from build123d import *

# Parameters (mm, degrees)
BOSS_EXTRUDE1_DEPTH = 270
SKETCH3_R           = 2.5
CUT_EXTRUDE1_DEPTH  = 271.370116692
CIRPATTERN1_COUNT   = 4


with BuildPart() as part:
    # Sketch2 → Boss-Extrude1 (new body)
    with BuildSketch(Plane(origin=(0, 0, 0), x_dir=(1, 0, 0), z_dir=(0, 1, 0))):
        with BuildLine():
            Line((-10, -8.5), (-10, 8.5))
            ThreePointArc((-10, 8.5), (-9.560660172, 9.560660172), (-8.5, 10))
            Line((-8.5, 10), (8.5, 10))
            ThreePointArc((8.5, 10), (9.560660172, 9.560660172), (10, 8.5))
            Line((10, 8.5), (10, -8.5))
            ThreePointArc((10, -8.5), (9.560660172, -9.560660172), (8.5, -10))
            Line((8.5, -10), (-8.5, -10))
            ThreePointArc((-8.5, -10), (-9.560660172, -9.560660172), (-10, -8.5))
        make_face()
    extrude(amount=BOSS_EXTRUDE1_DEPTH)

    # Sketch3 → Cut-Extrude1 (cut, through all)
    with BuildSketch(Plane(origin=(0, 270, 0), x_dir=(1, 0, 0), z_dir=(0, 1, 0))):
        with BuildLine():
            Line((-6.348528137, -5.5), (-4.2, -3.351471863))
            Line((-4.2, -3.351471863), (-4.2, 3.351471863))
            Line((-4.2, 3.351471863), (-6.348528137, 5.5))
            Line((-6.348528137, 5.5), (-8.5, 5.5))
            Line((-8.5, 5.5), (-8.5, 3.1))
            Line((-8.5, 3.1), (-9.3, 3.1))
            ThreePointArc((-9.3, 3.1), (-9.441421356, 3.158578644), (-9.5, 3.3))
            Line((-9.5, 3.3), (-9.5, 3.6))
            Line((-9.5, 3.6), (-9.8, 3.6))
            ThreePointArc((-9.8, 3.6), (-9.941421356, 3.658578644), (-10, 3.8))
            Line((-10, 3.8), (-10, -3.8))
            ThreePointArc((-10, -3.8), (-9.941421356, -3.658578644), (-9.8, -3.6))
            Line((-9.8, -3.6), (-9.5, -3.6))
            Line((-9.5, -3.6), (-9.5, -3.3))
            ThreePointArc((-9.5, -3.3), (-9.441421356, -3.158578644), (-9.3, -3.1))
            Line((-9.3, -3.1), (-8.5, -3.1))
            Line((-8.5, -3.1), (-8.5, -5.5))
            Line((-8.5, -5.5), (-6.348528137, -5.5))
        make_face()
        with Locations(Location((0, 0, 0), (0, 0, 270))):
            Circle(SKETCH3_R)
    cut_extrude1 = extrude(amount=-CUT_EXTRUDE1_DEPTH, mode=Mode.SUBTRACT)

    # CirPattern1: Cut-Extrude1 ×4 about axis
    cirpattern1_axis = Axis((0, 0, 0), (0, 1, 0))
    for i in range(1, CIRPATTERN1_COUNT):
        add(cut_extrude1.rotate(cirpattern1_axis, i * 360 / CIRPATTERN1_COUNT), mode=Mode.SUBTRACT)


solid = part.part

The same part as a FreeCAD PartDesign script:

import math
import FreeCAD as App
import Part
import Sketcher

V = App.Vector
Q = App.Units.Quantity

doc = App.newDocument("Part")
body = doc.addObject("PartDesign::Body", "Body")

# Sketch on XZ plane
sketch1 = body.newObject("Sketcher::SketchObject", "Sketch")
sketch1.AttachmentSupport = (doc.getObject("XZ_Plane"), [""])
sketch1.MapMode = "FlatFace"
sketch1.addGeometry([
    Part.LineSegment(V(-10, -8.5, 0), V(-10, 8.5, 0)),  # 0
    Part.ArcOfCircle(Part.Circle(V(-8.5, 8.5, 0), V(0, 0, 1), 1.5), math.radians(90), math.radians(180)),  # 1
    Part.LineSegment(V(-8.5, 10, 0), V(8.5, 10, 0)),  # 2
    Part.ArcOfCircle(Part.Circle(V(8.5, 8.5, 0), V(0, 0, 1), 1.5), math.radians(0), math.radians(90)),  # 3
    Part.LineSegment(V(10, 8.5, 0), V(10, -8.5, 0)),  # 4
    Part.ArcOfCircle(Part.Circle(V(8.5, -8.5, 0), V(0, 0, 1), 1.5), math.radians(-90), math.radians(0)),  # 5
    Part.LineSegment(V(8.5, -10, 0), V(-8.5, -10, 0)),  # 6
    Part.ArcOfCircle(Part.Circle(V(-8.5, -8.5, 0), V(0, 0, 1), 1.5), math.radians(180), math.radians(270)),  # 7
], False)
sketch1.addConstraint([
    Sketcher.Constraint("Tangent", 0, 2, 1, 2),
    Sketcher.Constraint("Tangent", 1, 1, 2, 1),
    Sketcher.Constraint("Tangent", 2, 2, 3, 2),
    Sketcher.Constraint("Tangent", 3, 1, 4, 1),
    Sketcher.Constraint("Tangent", 4, 2, 5, 2),
    Sketcher.Constraint("Tangent", 5, 1, 6, 1),
    Sketcher.Constraint("Tangent", 6, 2, 7, 2),
    Sketcher.Constraint("Tangent", 7, 1, 0, 1),
    Sketcher.Constraint("Vertical", 0),
    Sketcher.Constraint("Horizontal", 2),
    Sketcher.Constraint("Vertical", 4),
    Sketcher.Constraint("Horizontal", 6),
    Sketcher.Constraint("Equal", 1, 3),
    Sketcher.Constraint("Equal", 3, 5),
    Sketcher.Constraint("Equal", 5, 7),
    Sketcher.Constraint("Symmetric", 1, 3, 5, 3, -1, 1),
    Sketcher.Constraint("Equal", 6, 0),
    Sketcher.Constraint("Radius", 1, Q("1.5 mm")),
    Sketcher.Constraint("DistanceX", 2, 1, 2, 2, Q("17 mm")),
])
pad1 = body.newObject("PartDesign::Pad", "Pad")
pad1.Profile = sketch1
pad1.Length = 270
pad1.Reversed = True

# Sketch on XZ plane
sketch2 = body.newObject("Sketcher::SketchObject", "Sketch001")
sketch2.AttachmentSupport = (doc.getObject("XZ_Plane"), [""])
sketch2.MapMode = "FlatFace"
sketch2.AttachmentOffset = App.Placement(V(0, 0, -270), App.Rotation())
sketch2.addGeometry([
    Part.LineSegment(V(-6.348528, 5.5, 0), V(-4.2, 3.351472, 0)),  # 0
    Part.LineSegment(V(-4.2, 3.351472, 0), V(-4.2, -3.351472, 0)),  # 1
    Part.LineSegment(V(-4.2, -3.351472, 0), V(-6.348528, -5.5, 0)),  # 2
    Part.LineSegment(V(-6.348528, -5.5, 0), V(-8.5, -5.5, 0)),  # 3
    Part.LineSegment(V(-8.5, -5.5, 0), V(-8.5, -3.1, 0)),  # 4
    Part.LineSegment(V(-8.5, -3.1, 0), V(-9.3, -3.1, 0)),  # 5
    Part.ArcOfCircle(Part.Circle(V(-9.3, -3.3, 0), V(0, 0, 1), 0.2), math.radians(90), math.radians(180)),  # 6
    Part.LineSegment(V(-9.5, -3.3, 0), V(-9.5, -3.6, 0)),  # 7
    Part.LineSegment(V(-9.5, -3.6, 0), V(-9.8, -3.6, 0)),  # 8
    Part.ArcOfCircle(Part.Circle(V(-9.8, -3.8, 0), V(0, 0, 1), 0.2), math.radians(90), math.radians(180)),  # 9
    Part.LineSegment(V(-10, -3.8, 0), V(-10, 3.8, 0)),  # 10
    Part.ArcOfCircle(Part.Circle(V(-9.8, 3.8, 0), V(0, 0, 1), 0.2), math.radians(-180), math.radians(-90)),  # 11
    Part.LineSegment(V(-9.8, 3.6, 0), V(-9.5, 3.6, 0)),  # 12
    Part.LineSegment(V(-9.5, 3.6, 0), V(-9.5, 3.3, 0)),  # 13
    Part.ArcOfCircle(Part.Circle(V(-9.3, 3.3, 0), V(0, 0, 1), 0.2), math.radians(-180), math.radians(-90)),  # 14
    Part.LineSegment(V(-9.3, 3.1, 0), V(-8.5, 3.1, 0)),  # 15
    Part.LineSegment(V(-8.5, 3.1, 0), V(-8.5, 5.5, 0)),  # 16
    Part.LineSegment(V(-8.5, 5.5, 0), V(-6.348528, 5.5, 0)),  # 17
    Part.Circle(V(0, 0, 0), V(0, 0, 1), 2.5),  # 18
], False)
sketch2.addConstraint([
    Sketcher.Constraint("Coincident", 0, 2, 1, 1),
    Sketcher.Constraint("Coincident", 1, 2, 2, 1),
    Sketcher.Constraint("Coincident", 2, 2, 3, 1),
    Sketcher.Constraint("Coincident", 3, 2, 4, 1),
    Sketcher.Constraint("Coincident", 4, 2, 5, 1),
    Sketcher.Constraint("Tangent", 5, 2, 6, 1),
    Sketcher.Constraint("Tangent", 6, 2, 7, 1),
    Sketcher.Constraint("Coincident", 7, 2, 8, 1),
    Sketcher.Constraint("Tangent", 8, 2, 9, 1),
    Sketcher.Constraint("Tangent", 9, 2, 10, 1),
    Sketcher.Constraint("Tangent", 10, 2, 11, 1),
    Sketcher.Constraint("Tangent", 11, 2, 12, 1),
    Sketcher.Constraint("Coincident", 12, 2, 13, 1),
    Sketcher.Constraint("Tangent", 13, 2, 14, 1),
    Sketcher.Constraint("Tangent", 14, 2, 15, 1),
    Sketcher.Constraint("Coincident", 15, 2, 16, 1),
    Sketcher.Constraint("Coincident", 16, 2, 17, 1),
    Sketcher.Constraint("Coincident", 17, 2, 0, 1),
    Sketcher.Constraint("Vertical", 1),
    Sketcher.Constraint("Horizontal", 3),
    Sketcher.Constraint("Vertical", 4),
    Sketcher.Constraint("Horizontal", 5),
    Sketcher.Constraint("Vertical", 7),
    Sketcher.Constraint("Horizontal", 8),
    Sketcher.Constraint("Vertical", 10),
    Sketcher.Constraint("Horizontal", 12),
    Sketcher.Constraint("Vertical", 13),
    Sketcher.Constraint("Horizontal", 15),
    Sketcher.Constraint("Vertical", 16),
    Sketcher.Constraint("Horizontal", 17),
    Sketcher.Constraint("Coincident", 18, 3, -1, 1),
    Sketcher.Constraint("Equal", 6, 9),
    Sketcher.Constraint("Equal", 9, 11),
    Sketcher.Constraint("Equal", 11, 14),
    Sketcher.Constraint("Symmetric", 6, 3, 14, 3, -1),
    Sketcher.Constraint("Symmetric", 3, 2, 16, 2, -1),
    Sketcher.Constraint("Perpendicular", 0, 2),
    Sketcher.Constraint("Vertical", 2, 2, 17, 2),
    Sketcher.Constraint("Equal", 12, 7),
    Sketcher.Constraint("Equal", 7, 13),
    Sketcher.Constraint("Equal", 0, 2),
    Sketcher.Constraint("Diameter", 18, Q("5 mm")),
    Sketcher.Constraint("Radius", 6, Q("0.2 mm")),
    Sketcher.Constraint("DistanceX", 5, 2, 5, 1, Q("0.8 mm")),
    Sketcher.Constraint("DistanceX", 8, 2, 8, 1, Q("0.3 mm")),
    Sketcher.Constraint("DistanceY", 4, 1, 4, 2, Q("2.4 mm")),
    Sketcher.Constraint("DistanceY", 10, 1, 10, 2, Q("7.6 mm")),
    Sketcher.Constraint("DistanceX", 9, 2, -1, 1, Q("10 mm")),
    Sketcher.Constraint("DistanceX", 0, 2, -1, 1, Q("4.2 mm")),
    Sketcher.Constraint("DistanceX", 3, 2, 3, 1, Q("2.151472 mm")),
])
pocket1 = body.newObject("PartDesign::Pocket", "Pocket")
pocket1.Profile = sketch2
pocket1.Type = "ThroughAll"
pocket1.Reversed = True
doc.recompute()

polarpattern = body.newObject("PartDesign::PolarPattern", "PolarPattern")
polarpattern.Originals = [pocket1]
polarpattern.Axis = (doc.getObject("Y_Axis"), [""])
polarpattern.Angle = 360
polarpattern.Occurrences = 4
body.Tip = polarpattern

doc.recompute()
